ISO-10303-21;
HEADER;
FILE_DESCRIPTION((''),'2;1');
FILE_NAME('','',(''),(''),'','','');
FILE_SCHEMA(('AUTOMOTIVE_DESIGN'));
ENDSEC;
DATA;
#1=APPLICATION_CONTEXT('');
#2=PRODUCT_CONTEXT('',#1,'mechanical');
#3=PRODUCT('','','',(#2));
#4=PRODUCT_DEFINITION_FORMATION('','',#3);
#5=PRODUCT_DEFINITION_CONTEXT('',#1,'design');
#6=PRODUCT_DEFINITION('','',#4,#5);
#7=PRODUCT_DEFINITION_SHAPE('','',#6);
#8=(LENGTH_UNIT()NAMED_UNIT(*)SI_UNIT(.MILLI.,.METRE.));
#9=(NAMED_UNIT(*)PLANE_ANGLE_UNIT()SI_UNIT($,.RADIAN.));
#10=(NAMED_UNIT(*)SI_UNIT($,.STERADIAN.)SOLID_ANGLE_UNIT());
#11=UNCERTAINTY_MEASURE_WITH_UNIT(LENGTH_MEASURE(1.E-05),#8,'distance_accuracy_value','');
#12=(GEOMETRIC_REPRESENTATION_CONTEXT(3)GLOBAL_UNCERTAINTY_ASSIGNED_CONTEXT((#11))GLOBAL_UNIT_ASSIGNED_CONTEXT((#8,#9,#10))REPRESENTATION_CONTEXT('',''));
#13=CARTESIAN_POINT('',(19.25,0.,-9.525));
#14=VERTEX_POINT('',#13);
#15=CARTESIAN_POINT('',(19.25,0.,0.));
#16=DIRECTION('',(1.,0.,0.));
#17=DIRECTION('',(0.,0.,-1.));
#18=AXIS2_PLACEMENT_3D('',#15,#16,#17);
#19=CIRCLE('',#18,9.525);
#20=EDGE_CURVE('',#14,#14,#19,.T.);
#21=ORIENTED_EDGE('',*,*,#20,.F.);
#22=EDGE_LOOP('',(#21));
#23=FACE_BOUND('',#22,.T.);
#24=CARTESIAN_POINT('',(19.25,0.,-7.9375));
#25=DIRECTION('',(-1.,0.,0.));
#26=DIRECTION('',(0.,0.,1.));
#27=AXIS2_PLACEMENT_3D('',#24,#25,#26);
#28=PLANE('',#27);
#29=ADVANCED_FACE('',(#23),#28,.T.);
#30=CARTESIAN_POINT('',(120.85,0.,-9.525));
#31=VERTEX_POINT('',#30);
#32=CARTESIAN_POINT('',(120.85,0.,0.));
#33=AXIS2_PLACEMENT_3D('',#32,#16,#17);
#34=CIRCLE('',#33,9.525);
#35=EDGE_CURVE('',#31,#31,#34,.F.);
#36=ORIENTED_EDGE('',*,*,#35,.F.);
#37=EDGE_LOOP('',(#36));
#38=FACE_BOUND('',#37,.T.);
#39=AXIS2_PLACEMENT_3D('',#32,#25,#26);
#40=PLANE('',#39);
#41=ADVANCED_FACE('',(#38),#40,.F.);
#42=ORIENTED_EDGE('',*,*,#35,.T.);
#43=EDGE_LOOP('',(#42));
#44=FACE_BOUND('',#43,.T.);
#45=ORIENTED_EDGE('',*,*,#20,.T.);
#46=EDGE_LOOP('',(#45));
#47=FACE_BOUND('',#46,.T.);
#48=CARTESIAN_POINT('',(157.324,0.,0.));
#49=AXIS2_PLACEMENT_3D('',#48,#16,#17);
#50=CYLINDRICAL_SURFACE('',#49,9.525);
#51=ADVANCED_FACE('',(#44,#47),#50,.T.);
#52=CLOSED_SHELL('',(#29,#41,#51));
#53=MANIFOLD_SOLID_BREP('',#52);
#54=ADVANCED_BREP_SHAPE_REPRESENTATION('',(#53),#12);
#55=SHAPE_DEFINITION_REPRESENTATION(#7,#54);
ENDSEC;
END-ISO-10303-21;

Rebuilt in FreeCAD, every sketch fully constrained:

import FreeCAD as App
import Part
import Sketcher

V = App.Vector
Q = App.Units.Quantity


def add_polygon(sketch, points):
    """Adds a closed chain of lines whose ends are joined by coincident constraints."""
    first, n = sketch.GeometryCount, len(points)
    for a, b in zip(points, points[1:] + points[:1]):
        sketch.addGeometry(Part.LineSegment(App.Vector(*a, 0), App.Vector(*b, 0)), False)
    for i in range(n):
        sketch.addConstraint(Sketcher.Constraint("Coincident", first + i, 2, first + (i + 1) % n, 1))

doc = App.newDocument("Part")
params = doc.addObject("Spreadsheet::Sheet", "Params")
for row, (alias, value) in enumerate([
    ("sketch1_height", "0.0625 in"),
    ("revolution_angle", "360 deg"),
    ("sketch2_diameter", "0.625 in"),
    ("pad1_length", "4 in"),
    ("pocket1_length", "19.075 mm"),
], start=1):
    params.set(f"A{row}", alias)
    params.set(f"B{row}", "=" + value)
    params.setAlias(f"B{row}", alias)

body = doc.addObject("PartDesign::Body", "Body")

# Sketch on XZ plane
sketch1 = body.newObject("Sketcher::SketchObject", "Sketch")
sketch1.AttachmentSupport = (doc.getObject("XZ_Plane"), [""])
sketch1.MapMode = "FlatFace"
add_polygon(sketch1, [(19.2, -9.5), (19.2, -7.9), (139.9, -7.9), (139.9, -9.5)])  # lines 0-3
sketch1.addConstraint([
    Sketcher.Constraint("Vertical", 0),
    Sketcher.Constraint("Horizontal", 1),
    Sketcher.Constraint("Vertical", 2),
    Sketcher.Constraint("Horizontal", 3),
    Sketcher.Constraint("DistanceY", 0, 1, 0, 2, Q("0.0625 in")),
    Sketcher.Constraint("DistanceY", 0, 2, -1, 1, Q("0.3125 in")),
    Sketcher.Constraint("DistanceX", 1, 1, 1, 2, 120.675),
    Sketcher.Constraint("DistanceX", -1, 1, 0, 2, 19.25),
])
sketch1.setExpression("Constraints[8]", "Params.sketch1_height")
revolution = body.newObject("PartDesign::Revolution", "Revolution")
revolution.Profile = sketch1
revolution.ReferenceAxis = (sketch1, ["H_Axis"])
revolution.setExpression("Angle", "Params.revolution_angle")

# Sketch on YZ plane
sketch2 = body.newObject("Sketcher::SketchObject", "Sketch001")
sketch2.AttachmentSupport = (doc.getObject("YZ_Plane"), [""])
sketch2.MapMode = "FlatFace"
sketch2.AttachmentOffset = App.Placement(V(0, 0, 19.25), App.Rotation())
sketch2.addGeometry(Part.Circle(V(0, 0, 0), V(0, 0, 1), 8), False)
sketch2.addConstraint([
    Sketcher.Constraint("Coincident", 0, 3, -1, 1),
    Sketcher.Constraint("Diameter", 0, Q("0.625 in")),
])
sketch2.setExpression("Constraints[1]", "Params.sketch2_diameter")
pad1 = body.newObject("PartDesign::Pad", "Pad")
pad1.Profile = sketch2
pad1.setExpression("Length", "Params.pad1_length")

# Sketch on YZ plane
sketch3 = body.newObject("Sketcher::SketchObject", "Sketch002")
sketch3.AttachmentSupport = (doc.getObject("YZ_Plane"), [""])
sketch3.MapMode = "FlatFace"
sketch3.AttachmentOffset = App.Placement(V(0, 0, 120.85), App.Rotation())
sketch3.addGeometry(Part.Circle(V(0, 0, 0), V(0, 0, 1), 23), False)
sketch3.addConstraint([
    Sketcher.Constraint("Coincident", 0, 3, -1, 1),
    Sketcher.Constraint("Diameter", 0, 46.616051),
])
pocket1 = body.newObject("PartDesign::Pocket", "Pocket")
pocket1.Profile = sketch3
pocket1.setExpression("Length", "Params.pocket1_length")
pocket1.Reversed = True

doc.recompute()
